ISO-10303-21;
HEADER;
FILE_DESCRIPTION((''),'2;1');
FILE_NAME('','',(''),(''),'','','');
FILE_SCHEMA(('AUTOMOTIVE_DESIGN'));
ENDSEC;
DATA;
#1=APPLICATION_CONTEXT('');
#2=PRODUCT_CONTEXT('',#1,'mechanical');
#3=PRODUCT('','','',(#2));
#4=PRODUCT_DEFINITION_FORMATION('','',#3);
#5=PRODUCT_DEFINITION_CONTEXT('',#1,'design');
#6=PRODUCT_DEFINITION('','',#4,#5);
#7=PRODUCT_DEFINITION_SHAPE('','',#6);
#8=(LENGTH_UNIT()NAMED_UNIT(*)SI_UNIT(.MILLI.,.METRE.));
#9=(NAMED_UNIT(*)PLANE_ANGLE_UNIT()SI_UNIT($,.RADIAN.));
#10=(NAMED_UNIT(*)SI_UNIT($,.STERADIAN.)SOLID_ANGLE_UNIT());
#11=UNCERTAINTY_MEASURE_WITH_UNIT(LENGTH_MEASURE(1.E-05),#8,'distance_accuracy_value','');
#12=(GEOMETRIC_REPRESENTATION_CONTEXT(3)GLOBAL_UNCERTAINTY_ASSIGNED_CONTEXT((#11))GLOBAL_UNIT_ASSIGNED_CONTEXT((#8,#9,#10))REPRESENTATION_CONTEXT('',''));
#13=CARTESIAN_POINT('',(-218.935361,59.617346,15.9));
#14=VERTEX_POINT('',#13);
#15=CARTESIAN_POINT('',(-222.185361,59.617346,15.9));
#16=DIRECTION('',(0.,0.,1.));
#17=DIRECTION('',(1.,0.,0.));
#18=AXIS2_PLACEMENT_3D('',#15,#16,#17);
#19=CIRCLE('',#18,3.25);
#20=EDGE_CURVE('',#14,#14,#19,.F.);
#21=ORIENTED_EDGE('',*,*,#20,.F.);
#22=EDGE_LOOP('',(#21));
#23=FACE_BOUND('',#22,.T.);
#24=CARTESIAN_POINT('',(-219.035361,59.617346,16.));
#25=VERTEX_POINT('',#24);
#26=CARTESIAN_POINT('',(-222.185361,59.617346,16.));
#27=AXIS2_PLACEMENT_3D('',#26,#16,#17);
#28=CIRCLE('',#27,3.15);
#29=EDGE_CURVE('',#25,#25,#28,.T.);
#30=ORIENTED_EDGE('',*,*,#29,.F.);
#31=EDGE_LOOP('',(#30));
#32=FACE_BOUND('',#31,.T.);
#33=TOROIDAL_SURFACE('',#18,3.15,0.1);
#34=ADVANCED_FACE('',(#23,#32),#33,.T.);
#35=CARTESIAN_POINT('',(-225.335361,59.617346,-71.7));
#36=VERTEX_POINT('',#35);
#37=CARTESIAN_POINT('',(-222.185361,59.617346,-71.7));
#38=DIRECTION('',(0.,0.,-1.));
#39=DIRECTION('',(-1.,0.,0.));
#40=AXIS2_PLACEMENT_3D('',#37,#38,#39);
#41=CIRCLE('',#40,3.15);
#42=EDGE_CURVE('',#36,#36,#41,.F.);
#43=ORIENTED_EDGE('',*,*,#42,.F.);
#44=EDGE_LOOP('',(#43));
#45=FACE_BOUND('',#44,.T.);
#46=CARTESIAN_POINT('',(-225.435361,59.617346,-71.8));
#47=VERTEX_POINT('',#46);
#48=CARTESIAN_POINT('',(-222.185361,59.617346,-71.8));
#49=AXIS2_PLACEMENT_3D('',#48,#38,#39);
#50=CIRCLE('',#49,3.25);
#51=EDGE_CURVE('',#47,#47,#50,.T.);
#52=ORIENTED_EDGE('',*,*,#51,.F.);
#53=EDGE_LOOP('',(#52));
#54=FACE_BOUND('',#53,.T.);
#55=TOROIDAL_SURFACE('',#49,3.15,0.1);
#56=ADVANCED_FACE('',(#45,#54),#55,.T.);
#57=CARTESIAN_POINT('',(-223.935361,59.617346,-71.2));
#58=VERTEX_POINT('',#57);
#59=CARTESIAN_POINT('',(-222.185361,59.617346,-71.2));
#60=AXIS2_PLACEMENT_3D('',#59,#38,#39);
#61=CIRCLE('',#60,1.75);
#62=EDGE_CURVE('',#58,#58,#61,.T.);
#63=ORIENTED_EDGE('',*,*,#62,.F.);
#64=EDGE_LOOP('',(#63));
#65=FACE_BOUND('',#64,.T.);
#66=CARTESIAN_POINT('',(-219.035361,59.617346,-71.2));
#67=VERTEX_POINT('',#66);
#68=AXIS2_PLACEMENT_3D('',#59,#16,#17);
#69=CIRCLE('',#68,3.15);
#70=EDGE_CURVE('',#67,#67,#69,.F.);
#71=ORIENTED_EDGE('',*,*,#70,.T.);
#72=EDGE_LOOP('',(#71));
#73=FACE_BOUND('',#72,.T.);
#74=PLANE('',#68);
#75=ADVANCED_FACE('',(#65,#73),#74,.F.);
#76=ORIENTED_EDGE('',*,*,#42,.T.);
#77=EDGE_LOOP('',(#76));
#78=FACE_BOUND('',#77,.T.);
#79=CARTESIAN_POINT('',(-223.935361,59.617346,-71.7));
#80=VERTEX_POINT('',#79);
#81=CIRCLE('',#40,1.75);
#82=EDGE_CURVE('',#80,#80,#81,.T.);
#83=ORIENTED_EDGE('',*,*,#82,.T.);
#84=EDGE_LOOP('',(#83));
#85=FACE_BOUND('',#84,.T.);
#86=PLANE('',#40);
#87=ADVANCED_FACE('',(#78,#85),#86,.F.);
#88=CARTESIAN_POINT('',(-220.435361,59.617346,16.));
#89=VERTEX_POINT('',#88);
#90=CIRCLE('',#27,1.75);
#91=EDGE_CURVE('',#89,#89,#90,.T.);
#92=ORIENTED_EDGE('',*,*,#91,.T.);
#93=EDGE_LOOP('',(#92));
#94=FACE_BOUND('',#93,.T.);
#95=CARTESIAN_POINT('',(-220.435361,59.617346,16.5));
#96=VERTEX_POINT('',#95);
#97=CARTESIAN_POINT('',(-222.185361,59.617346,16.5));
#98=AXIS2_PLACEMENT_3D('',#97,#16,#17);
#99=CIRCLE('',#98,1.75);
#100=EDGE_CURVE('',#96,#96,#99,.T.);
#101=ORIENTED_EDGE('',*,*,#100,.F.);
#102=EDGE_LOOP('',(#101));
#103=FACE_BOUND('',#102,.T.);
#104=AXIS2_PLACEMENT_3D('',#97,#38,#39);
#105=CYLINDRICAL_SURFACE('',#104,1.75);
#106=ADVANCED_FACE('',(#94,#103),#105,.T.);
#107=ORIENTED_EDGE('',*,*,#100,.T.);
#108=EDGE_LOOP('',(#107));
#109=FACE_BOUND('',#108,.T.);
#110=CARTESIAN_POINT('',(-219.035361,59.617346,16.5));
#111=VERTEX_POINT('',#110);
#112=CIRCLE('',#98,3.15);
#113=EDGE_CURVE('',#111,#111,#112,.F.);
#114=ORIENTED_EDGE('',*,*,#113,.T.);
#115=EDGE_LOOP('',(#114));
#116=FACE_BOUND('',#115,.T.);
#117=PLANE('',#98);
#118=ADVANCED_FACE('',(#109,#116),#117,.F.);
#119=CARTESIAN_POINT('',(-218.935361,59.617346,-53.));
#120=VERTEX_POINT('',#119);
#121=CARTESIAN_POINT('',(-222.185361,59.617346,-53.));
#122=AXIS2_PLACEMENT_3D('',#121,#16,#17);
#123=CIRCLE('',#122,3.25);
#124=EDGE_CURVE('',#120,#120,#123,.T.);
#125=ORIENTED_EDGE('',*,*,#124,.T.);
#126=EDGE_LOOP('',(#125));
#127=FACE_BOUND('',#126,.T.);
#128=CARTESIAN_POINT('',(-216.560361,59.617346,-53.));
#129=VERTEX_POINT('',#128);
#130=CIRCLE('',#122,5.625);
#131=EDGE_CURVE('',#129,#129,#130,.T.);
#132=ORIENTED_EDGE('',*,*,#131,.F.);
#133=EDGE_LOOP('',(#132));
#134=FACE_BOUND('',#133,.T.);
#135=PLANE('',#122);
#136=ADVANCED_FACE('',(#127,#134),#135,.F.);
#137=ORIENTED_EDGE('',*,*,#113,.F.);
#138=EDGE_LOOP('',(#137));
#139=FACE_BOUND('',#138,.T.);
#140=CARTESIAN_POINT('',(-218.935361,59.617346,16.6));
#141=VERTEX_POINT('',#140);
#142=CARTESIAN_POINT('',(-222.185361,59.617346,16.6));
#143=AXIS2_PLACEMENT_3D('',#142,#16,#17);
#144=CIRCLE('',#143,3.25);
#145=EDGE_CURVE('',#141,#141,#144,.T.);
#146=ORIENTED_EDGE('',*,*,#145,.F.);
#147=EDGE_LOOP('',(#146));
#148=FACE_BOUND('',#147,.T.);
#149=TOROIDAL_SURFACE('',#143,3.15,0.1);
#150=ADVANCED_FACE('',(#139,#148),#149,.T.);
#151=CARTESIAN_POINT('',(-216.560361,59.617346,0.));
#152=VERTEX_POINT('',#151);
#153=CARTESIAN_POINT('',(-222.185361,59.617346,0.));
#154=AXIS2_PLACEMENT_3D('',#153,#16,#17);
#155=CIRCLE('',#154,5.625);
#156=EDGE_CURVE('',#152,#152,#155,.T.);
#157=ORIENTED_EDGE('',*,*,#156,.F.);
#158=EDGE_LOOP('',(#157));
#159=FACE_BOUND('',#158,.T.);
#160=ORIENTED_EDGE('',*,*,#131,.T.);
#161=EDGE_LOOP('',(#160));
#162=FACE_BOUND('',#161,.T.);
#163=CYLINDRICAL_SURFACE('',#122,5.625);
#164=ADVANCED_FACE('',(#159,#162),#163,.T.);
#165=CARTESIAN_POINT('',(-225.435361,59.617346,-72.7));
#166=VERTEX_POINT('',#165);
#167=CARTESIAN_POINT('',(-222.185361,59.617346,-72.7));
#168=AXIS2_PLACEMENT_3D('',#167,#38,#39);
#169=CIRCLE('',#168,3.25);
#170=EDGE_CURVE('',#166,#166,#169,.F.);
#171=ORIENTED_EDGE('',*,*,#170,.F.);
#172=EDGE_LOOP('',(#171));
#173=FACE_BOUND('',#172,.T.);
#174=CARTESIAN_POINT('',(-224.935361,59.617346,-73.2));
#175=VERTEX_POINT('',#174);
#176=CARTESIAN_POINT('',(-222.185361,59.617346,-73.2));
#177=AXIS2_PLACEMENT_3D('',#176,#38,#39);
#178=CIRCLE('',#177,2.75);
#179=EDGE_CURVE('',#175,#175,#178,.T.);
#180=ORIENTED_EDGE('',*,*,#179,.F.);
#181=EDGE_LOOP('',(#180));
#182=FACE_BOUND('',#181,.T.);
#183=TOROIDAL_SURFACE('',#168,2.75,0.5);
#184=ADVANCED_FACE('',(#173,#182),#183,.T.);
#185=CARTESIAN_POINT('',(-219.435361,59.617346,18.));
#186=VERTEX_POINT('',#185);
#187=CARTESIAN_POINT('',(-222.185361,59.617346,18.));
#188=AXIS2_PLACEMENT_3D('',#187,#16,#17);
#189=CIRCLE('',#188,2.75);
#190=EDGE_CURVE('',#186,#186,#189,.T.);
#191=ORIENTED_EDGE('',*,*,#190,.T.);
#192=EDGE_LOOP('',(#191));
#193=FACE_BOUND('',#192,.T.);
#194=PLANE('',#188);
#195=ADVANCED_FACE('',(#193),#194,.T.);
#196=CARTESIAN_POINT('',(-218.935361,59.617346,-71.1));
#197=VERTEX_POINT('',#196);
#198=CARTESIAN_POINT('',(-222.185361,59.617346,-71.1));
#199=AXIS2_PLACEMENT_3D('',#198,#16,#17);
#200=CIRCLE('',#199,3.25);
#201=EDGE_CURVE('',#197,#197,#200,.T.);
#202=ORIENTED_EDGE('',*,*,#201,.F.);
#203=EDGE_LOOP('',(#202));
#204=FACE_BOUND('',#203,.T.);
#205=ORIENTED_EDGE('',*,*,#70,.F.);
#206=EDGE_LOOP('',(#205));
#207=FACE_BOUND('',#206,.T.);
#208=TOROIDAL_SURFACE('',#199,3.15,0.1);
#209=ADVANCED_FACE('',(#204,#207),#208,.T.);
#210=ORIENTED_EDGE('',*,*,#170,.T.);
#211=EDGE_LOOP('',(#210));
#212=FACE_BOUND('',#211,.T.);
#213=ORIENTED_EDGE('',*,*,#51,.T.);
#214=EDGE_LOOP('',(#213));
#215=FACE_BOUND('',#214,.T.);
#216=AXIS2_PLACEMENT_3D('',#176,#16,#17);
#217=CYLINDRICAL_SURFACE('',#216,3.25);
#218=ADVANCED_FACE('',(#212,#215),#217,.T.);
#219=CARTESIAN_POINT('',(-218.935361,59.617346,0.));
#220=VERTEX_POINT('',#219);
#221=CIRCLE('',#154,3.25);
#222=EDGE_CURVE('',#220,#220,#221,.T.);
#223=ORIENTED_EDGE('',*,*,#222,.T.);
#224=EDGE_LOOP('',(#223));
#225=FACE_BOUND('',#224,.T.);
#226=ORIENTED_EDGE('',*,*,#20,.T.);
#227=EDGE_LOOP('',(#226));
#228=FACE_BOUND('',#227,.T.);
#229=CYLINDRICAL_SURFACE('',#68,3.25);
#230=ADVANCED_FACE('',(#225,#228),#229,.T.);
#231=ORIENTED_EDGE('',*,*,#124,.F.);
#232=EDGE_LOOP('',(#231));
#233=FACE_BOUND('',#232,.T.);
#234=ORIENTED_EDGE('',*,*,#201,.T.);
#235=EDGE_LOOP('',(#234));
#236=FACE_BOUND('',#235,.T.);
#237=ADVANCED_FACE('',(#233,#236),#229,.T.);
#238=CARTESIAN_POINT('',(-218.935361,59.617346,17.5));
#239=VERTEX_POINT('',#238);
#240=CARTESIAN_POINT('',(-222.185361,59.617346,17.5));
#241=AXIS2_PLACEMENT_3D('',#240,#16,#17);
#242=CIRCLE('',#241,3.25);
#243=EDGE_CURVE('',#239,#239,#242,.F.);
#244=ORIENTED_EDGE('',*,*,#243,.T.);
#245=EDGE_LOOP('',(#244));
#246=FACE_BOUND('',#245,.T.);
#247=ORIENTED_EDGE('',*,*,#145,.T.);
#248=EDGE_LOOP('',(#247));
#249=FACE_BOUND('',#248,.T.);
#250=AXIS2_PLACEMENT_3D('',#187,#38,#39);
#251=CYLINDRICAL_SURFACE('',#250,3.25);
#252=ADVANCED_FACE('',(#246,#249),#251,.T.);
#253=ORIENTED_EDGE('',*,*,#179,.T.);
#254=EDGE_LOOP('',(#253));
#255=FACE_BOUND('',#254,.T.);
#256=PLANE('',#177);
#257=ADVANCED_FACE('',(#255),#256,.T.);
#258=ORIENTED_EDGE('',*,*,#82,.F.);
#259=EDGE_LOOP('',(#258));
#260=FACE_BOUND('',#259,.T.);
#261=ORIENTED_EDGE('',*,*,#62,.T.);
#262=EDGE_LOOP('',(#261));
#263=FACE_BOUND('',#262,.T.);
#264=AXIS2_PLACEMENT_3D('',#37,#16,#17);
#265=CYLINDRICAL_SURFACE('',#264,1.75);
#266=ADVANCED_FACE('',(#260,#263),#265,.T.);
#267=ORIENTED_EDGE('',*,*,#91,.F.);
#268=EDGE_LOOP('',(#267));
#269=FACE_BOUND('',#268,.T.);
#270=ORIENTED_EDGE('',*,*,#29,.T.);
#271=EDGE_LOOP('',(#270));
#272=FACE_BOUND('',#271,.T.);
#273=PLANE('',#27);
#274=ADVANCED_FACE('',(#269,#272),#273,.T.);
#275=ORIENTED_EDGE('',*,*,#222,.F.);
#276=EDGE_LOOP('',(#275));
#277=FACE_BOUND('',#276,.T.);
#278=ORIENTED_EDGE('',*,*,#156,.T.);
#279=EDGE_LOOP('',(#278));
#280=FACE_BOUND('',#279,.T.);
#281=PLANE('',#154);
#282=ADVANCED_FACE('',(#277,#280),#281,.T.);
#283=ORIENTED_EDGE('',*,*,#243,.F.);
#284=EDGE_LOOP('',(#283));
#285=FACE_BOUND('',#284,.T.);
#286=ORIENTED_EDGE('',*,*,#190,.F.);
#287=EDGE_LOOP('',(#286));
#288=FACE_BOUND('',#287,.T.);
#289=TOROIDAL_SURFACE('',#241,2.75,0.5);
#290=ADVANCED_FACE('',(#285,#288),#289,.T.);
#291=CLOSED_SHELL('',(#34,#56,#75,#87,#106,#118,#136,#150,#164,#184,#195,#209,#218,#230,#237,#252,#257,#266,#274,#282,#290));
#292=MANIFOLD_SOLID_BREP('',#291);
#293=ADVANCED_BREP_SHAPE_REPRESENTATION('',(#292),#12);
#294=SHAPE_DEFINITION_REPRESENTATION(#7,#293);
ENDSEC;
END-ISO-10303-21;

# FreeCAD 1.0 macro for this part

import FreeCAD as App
import Part
import Sketcher
from FreeCAD import Vector
Q = App.Units.Quantity


def edges_at(feature, points):
    """Names of the edges that pass closest to the given points."""
    edges = feature.Shape.Edges
    near = lambda p: min(range(len(edges)), key=lambda i: edges[i].distToShape(Part.Vertex(*p))[0])
    return sorted({f"Edge{near(p) + 1}" for p in points})

doc = App.newDocument("Part")
body = doc.addObject("PartDesign::Body", "Body")

# Sketch on XY plane
sketch1 = body.newObject("Sketcher::SketchObject", "Sketch")
sketch1.AttachmentSupport = (doc.getObject("XY_Plane"), [""])
sketch1.MapMode = "FlatFace"
sketch1.addGeometry(Part.Circle(Vector(-222, 60, 0), Vector(0, 0, 1), 6), False)
sketch1.addConstraint([
    Sketcher.Constraint("Diameter", 0, Q("11.25 mm")),
    Sketcher.Constraint("DistanceX", 0, 3, -1, 1, Q("222.185361 mm")),
    Sketcher.Constraint("DistanceY", -1, 1, 0, 3, Q("59.617346 mm")),
])
pad1 = body.newObject("PartDesign::Pad", "Pad")
pad1.Profile = sketch1
pad1.Length = 53
pad1.Reversed = True

# Sketch on XY plane
sketch2 = body.newObject("Sketcher::SketchObject", "Sketch001")
sketch2.AttachmentSupport = (doc.getObject("XY_Plane"), [""])
sketch2.MapMode = "FlatFace"
sketch2.addGeometry(Part.Circle(Vector(-222.2, 59.6, 0), Vector(0, 0, 1), 3.2), False)
sketch2.addConstraint([
    Sketcher.Constraint("Diameter", 0, Q("6.5 mm")),
    Sketcher.Constraint("DistanceX", 0, 3, -1, 1, Q("222.185361 mm")),
    Sketcher.Constraint("DistanceY", -1, 1, 0, 3, Q("59.617346 mm")),
])
pad2 = body.newObject("PartDesign::Pad", "Pad001")
pad2.Profile = sketch2
pad2.Type = "TwoLengths"
pad2.Length = 16
pad2.Length2 = 71.2

# Sketch on XY plane
sketch3 = body.newObject("Sketcher::SketchObject", "Sketch002")
sketch3.AttachmentSupport = (doc.getObject("XY_Plane"), [""])
sketch3.MapMode = "FlatFace"
sketch3.AttachmentOffset = App.Placement(Vector(0, 0, 16), App.Rotation())
sketch3.addGeometry(Part.Circle(Vector(-222.2, 59.6, 0), Vector(0, 0, 1), 1.8), False)
sketch3.addConstraint([
    Sketcher.Constraint("Diameter", 0, Q("3.5 mm")),
    Sketcher.Constraint("DistanceX", 0, 3, -1, 1, Q("222.185361 mm")),
    Sketcher.Constraint("DistanceY", -1, 1, 0, 3, Q("59.617346 mm")),
])
pad3 = body.newObject("PartDesign::Pad", "Pad002")
pad3.Profile = sketch3
pad3.Length = 0.5

# Sketch on XY plane
sketch4 = body.newObject("Sketcher::SketchObject", "Sketch003")
sketch4.AttachmentSupport = (doc.getObject("XY_Plane"), [""])
sketch4.MapMode = "FlatFace"
sketch4.AttachmentOffset = App.Placement(Vector(0, 0, -71.7), App.Rotation())
sketch4.addGeometry(Part.Circle(Vector(-222.2, 59.6, 0), Vector(0, 0, 1), 1.8), False)
sketch4.addConstraint([
    Sketcher.Constraint("Diameter", 0, Q("3.5 mm")),
    Sketcher.Constraint("DistanceX", 0, 3, -1, 1, Q("222.185361 mm")),
    Sketcher.Constraint("DistanceY", -1, 1, 0, 3, Q("59.617346 mm")),
])
pad4 = body.newObject("PartDesign::Pad", "Pad003")
pad4.Profile = sketch4
pad4.Length = 0.5

# Sketch on XY plane
sketch5 = body.newObject("Sketcher::SketchObject", "Sketch004")
sketch5.AttachmentSupport = (doc.getObject("XY_Plane"), [""])
sketch5.MapMode = "FlatFace"
sketch5.AttachmentOffset = App.Placement(Vector(0, 0, -71.7), App.Rotation())
sketch5.addGeometry(Part.Circle(Vector(-222.2, 59.6, 0), Vector(0, 0, 1), 3.2), False)
sketch5.addConstraint([
    Sketcher.Constraint("Diameter", 0, Q("6.5 mm")),
    Sketcher.Constraint("DistanceX", 0, 3, -1, 1, Q("222.185361 mm")),
    Sketcher.Constraint("DistanceY", -1, 1, 0, 3, Q("59.617346 mm")),
])
pad5 = body.newObject("PartDesign::Pad", "Pad004")
pad5.Profile = sketch5
pad5.Length = 1.5
pad5.Reversed = True

# Sketch on XY plane
sketch6 = body.newObject("Sketcher::SketchObject", "Sketch005")
sketch6.AttachmentSupport = (doc.getObject("XY_Plane"), [""])
sketch6.MapMode = "FlatFace"
sketch6.AttachmentOffset = App.Placement(Vector(0, 0, 18), App.Rotation())
sketch6.addGeometry(Part.Circle(Vector(-222.2, 59.6, 0), Vector(0, 0, 1), 3.2), False)
sketch6.addConstraint([
    Sketcher.Constraint("Diameter", 0, Q("6.5 mm")),
    Sketcher.Constraint("DistanceX", 0, 3, -1, 1, Q("222.185361 mm")),
    Sketcher.Constraint("DistanceY", -1, 1, 0, 3, Q("59.617346 mm")),
])
pad6 = body.newObject("PartDesign::Pad", "Pad005")
pad6.Profile = sketch6
pad6.Length = 1.5
pad6.Reversed = True
doc.recompute()

fillet = body.newObject("PartDesign::Fillet", "Fillet")
fillet.Base = (pad6, edges_at(pad6, [
    (-225.435, 59.617, -71.7),
    (-225.435, 59.617, 16.5),
    (-225.435, 59.617, -71.2),
    (-225.435, 59.617, 16),
]))
fillet.Radius = 0.1
doc.recompute()

fillet2 = body.newObject("PartDesign::Fillet", "Fillet001")
fillet2.Base = (fillet, edges_at(fillet, [(-225.435, 59.617, -73.2), (-225.435, 59.617, 18)]))
fillet2.Radius = 0.5

doc.recompute()
